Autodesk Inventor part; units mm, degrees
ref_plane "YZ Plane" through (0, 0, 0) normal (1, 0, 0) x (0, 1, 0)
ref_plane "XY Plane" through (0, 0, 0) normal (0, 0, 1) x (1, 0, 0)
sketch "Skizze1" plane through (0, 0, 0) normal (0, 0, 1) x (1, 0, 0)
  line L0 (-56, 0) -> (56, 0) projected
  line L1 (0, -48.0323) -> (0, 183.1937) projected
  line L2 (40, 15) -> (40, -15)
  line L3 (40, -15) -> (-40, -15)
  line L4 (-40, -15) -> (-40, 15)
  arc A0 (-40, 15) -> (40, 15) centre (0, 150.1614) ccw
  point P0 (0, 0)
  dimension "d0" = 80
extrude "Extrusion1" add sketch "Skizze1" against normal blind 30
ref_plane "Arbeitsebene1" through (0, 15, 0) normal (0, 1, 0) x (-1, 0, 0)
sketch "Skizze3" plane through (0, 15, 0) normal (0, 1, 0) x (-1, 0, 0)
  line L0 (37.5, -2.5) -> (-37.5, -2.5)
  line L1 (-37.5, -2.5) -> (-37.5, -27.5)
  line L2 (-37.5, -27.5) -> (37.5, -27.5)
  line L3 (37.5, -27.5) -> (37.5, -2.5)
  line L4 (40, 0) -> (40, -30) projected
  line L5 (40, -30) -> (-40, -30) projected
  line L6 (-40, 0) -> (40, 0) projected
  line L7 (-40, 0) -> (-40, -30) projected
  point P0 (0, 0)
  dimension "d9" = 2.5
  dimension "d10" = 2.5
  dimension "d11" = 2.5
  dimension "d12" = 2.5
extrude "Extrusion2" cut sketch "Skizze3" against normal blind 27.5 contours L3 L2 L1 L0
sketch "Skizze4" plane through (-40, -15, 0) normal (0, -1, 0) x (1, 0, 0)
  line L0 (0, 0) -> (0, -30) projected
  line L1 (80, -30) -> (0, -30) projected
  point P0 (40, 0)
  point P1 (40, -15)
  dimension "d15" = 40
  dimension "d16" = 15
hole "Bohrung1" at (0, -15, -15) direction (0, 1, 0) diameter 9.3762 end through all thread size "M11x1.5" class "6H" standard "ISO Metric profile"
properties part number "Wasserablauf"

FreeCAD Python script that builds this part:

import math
import FreeCAD as App
import Part
import Sketcher
from FreeCAD import Vector


def add_polygon(sketch, points):
    """Adds a closed chain of lines whose ends are joined by coincident constraints."""
    first, n = sketch.GeometryCount, len(points)
    for a, b in zip(points, points[1:] + points[:1]):
        sketch.addGeometry(Part.LineSegment(App.Vector(*a, 0), App.Vector(*b, 0)), False)
    for i in range(n):
        sketch.addConstraint(Sketcher.Constraint("Coincident", first + i, 2, first + (i + 1) % n, 1))

doc = App.newDocument("Part")
body = doc.addObject("PartDesign::Body", "Body")

sketch1 = doc.addObject("Sketcher::SketchObject", "Sketch")
body.addObject(sketch1)
sketch1.AttachmentSupport = (doc.XY_Plane, [""])
sketch1.MapMode = "FlatFace"
sketch1.addGeometry([
    Part.LineSegment(Vector(-40, 15, 0), Vector(-40, -15, 0)),
    Part.LineSegment(Vector(-40, -15, 0), Vector(40, -15, 0)),
    Part.LineSegment(Vector(40, -15, 0), Vector(40, 15, 0)),
    Part.ArcOfCircle(Part.Circle(Vector(0, 150, 0), Vector(0, 0, 1), 141), math.radians(-106), math.radians(-74)),
], False)
sketch1.addConstraint([
    Sketcher.Constraint("Coincident", 0, 2, 1, 1),
    Sketcher.Constraint("Coincident", 1, 2, 2, 1),
    Sketcher.Constraint("Coincident", 2, 2, 3, 2),
    Sketcher.Constraint("Coincident", 3, 1, 0, 1),
    Sketcher.Constraint("Vertical", 0),
    Sketcher.Constraint("Horizontal", 1),
    Sketcher.Constraint("Vertical", 2),
    Sketcher.Constraint("Symmetric", 0, 2, 2, 2, -1, 1),
    Sketcher.Constraint("PointOnObject", 3, 3, -2),
    Sketcher.Constraint("DistanceX", 1, 1, 1, 2, 80.0),
    Sketcher.Constraint("DistanceY", 0, 2, 0, 1, 30.0),
    Sketcher.Constraint("Radius", 3, 140.956),
])
pad1 = doc.addObject("PartDesign::Pad", "Pad")
body.addObject(pad1)
pad1.Profile = sketch1
pad1.Length = 30
pad1.Reversed = True

sketch2 = doc.addObject("Sketcher::SketchObject", "Sketch001")
body.addObject(sketch2)
sketch2.AttachmentSupport = (doc.XZ_Plane, [""])
sketch2.MapMode = "FlatFace"
sketch2.AttachmentOffset = App.Placement(Vector(0, 0, -15), App.Rotation())
add_polygon(sketch2, [(-38, -28), (-38, -2), (38, -2), (38, -28)])
sketch2.addConstraint([
    Sketcher.Constraint("Vertical", 0),
    Sketcher.Constraint("Horizontal", 1),
    Sketcher.Constraint("Vertical", 2),
    Sketcher.Constraint("Horizontal", 3),
    Sketcher.Constraint("DistanceY", 0, 2, -1, 1, 2.5),
    Sketcher.Constraint("DistanceX", 1, 1, 1, 2, 75.0),
    Sketcher.Constraint("DistanceY", 0, 1, 0, 2, 25.0),
    Sketcher.Constraint("DistanceX", 0, 2, -1, 1, 37.5),
])
pocket1 = doc.addObject("PartDesign::Pocket", "Pocket")
body.addObject(pocket1)
pocket1.Profile = sketch2
pocket1.Length = 27.5
pocket1.Reversed = True

sketch3 = doc.addObject("Sketcher::SketchObject", "Sketch002")
body.addObject(sketch3)
sketch3.AttachmentSupport = (doc.XZ_Plane, [""])
sketch3.MapMode = "FlatFace"
sketch3.AttachmentOffset = App.Placement(Vector(0, 0, 15), App.Rotation())
sketch3.addGeometry(Part.Circle(Vector(0, -15, 0), Vector(0, 0, 1), 4.7), False)
sketch3.addConstraint([
    Sketcher.Constraint("PointOnObject", 0, 3, -2),
    Sketcher.Constraint("DistanceY", 0, 3, -1, 1, 15.0),
    Sketcher.Constraint("Diameter", 0, 9.3762),
])
doc.recompute()
hole = doc.addObject("PartDesign::Hole", "Hole")
body.addObject(hole)
hole.Profile = sketch3
hole.ThreadType = "None"
hole.Diameter = 9.3762
hole.DepthType = "ThroughAll"

doc.recompute()
